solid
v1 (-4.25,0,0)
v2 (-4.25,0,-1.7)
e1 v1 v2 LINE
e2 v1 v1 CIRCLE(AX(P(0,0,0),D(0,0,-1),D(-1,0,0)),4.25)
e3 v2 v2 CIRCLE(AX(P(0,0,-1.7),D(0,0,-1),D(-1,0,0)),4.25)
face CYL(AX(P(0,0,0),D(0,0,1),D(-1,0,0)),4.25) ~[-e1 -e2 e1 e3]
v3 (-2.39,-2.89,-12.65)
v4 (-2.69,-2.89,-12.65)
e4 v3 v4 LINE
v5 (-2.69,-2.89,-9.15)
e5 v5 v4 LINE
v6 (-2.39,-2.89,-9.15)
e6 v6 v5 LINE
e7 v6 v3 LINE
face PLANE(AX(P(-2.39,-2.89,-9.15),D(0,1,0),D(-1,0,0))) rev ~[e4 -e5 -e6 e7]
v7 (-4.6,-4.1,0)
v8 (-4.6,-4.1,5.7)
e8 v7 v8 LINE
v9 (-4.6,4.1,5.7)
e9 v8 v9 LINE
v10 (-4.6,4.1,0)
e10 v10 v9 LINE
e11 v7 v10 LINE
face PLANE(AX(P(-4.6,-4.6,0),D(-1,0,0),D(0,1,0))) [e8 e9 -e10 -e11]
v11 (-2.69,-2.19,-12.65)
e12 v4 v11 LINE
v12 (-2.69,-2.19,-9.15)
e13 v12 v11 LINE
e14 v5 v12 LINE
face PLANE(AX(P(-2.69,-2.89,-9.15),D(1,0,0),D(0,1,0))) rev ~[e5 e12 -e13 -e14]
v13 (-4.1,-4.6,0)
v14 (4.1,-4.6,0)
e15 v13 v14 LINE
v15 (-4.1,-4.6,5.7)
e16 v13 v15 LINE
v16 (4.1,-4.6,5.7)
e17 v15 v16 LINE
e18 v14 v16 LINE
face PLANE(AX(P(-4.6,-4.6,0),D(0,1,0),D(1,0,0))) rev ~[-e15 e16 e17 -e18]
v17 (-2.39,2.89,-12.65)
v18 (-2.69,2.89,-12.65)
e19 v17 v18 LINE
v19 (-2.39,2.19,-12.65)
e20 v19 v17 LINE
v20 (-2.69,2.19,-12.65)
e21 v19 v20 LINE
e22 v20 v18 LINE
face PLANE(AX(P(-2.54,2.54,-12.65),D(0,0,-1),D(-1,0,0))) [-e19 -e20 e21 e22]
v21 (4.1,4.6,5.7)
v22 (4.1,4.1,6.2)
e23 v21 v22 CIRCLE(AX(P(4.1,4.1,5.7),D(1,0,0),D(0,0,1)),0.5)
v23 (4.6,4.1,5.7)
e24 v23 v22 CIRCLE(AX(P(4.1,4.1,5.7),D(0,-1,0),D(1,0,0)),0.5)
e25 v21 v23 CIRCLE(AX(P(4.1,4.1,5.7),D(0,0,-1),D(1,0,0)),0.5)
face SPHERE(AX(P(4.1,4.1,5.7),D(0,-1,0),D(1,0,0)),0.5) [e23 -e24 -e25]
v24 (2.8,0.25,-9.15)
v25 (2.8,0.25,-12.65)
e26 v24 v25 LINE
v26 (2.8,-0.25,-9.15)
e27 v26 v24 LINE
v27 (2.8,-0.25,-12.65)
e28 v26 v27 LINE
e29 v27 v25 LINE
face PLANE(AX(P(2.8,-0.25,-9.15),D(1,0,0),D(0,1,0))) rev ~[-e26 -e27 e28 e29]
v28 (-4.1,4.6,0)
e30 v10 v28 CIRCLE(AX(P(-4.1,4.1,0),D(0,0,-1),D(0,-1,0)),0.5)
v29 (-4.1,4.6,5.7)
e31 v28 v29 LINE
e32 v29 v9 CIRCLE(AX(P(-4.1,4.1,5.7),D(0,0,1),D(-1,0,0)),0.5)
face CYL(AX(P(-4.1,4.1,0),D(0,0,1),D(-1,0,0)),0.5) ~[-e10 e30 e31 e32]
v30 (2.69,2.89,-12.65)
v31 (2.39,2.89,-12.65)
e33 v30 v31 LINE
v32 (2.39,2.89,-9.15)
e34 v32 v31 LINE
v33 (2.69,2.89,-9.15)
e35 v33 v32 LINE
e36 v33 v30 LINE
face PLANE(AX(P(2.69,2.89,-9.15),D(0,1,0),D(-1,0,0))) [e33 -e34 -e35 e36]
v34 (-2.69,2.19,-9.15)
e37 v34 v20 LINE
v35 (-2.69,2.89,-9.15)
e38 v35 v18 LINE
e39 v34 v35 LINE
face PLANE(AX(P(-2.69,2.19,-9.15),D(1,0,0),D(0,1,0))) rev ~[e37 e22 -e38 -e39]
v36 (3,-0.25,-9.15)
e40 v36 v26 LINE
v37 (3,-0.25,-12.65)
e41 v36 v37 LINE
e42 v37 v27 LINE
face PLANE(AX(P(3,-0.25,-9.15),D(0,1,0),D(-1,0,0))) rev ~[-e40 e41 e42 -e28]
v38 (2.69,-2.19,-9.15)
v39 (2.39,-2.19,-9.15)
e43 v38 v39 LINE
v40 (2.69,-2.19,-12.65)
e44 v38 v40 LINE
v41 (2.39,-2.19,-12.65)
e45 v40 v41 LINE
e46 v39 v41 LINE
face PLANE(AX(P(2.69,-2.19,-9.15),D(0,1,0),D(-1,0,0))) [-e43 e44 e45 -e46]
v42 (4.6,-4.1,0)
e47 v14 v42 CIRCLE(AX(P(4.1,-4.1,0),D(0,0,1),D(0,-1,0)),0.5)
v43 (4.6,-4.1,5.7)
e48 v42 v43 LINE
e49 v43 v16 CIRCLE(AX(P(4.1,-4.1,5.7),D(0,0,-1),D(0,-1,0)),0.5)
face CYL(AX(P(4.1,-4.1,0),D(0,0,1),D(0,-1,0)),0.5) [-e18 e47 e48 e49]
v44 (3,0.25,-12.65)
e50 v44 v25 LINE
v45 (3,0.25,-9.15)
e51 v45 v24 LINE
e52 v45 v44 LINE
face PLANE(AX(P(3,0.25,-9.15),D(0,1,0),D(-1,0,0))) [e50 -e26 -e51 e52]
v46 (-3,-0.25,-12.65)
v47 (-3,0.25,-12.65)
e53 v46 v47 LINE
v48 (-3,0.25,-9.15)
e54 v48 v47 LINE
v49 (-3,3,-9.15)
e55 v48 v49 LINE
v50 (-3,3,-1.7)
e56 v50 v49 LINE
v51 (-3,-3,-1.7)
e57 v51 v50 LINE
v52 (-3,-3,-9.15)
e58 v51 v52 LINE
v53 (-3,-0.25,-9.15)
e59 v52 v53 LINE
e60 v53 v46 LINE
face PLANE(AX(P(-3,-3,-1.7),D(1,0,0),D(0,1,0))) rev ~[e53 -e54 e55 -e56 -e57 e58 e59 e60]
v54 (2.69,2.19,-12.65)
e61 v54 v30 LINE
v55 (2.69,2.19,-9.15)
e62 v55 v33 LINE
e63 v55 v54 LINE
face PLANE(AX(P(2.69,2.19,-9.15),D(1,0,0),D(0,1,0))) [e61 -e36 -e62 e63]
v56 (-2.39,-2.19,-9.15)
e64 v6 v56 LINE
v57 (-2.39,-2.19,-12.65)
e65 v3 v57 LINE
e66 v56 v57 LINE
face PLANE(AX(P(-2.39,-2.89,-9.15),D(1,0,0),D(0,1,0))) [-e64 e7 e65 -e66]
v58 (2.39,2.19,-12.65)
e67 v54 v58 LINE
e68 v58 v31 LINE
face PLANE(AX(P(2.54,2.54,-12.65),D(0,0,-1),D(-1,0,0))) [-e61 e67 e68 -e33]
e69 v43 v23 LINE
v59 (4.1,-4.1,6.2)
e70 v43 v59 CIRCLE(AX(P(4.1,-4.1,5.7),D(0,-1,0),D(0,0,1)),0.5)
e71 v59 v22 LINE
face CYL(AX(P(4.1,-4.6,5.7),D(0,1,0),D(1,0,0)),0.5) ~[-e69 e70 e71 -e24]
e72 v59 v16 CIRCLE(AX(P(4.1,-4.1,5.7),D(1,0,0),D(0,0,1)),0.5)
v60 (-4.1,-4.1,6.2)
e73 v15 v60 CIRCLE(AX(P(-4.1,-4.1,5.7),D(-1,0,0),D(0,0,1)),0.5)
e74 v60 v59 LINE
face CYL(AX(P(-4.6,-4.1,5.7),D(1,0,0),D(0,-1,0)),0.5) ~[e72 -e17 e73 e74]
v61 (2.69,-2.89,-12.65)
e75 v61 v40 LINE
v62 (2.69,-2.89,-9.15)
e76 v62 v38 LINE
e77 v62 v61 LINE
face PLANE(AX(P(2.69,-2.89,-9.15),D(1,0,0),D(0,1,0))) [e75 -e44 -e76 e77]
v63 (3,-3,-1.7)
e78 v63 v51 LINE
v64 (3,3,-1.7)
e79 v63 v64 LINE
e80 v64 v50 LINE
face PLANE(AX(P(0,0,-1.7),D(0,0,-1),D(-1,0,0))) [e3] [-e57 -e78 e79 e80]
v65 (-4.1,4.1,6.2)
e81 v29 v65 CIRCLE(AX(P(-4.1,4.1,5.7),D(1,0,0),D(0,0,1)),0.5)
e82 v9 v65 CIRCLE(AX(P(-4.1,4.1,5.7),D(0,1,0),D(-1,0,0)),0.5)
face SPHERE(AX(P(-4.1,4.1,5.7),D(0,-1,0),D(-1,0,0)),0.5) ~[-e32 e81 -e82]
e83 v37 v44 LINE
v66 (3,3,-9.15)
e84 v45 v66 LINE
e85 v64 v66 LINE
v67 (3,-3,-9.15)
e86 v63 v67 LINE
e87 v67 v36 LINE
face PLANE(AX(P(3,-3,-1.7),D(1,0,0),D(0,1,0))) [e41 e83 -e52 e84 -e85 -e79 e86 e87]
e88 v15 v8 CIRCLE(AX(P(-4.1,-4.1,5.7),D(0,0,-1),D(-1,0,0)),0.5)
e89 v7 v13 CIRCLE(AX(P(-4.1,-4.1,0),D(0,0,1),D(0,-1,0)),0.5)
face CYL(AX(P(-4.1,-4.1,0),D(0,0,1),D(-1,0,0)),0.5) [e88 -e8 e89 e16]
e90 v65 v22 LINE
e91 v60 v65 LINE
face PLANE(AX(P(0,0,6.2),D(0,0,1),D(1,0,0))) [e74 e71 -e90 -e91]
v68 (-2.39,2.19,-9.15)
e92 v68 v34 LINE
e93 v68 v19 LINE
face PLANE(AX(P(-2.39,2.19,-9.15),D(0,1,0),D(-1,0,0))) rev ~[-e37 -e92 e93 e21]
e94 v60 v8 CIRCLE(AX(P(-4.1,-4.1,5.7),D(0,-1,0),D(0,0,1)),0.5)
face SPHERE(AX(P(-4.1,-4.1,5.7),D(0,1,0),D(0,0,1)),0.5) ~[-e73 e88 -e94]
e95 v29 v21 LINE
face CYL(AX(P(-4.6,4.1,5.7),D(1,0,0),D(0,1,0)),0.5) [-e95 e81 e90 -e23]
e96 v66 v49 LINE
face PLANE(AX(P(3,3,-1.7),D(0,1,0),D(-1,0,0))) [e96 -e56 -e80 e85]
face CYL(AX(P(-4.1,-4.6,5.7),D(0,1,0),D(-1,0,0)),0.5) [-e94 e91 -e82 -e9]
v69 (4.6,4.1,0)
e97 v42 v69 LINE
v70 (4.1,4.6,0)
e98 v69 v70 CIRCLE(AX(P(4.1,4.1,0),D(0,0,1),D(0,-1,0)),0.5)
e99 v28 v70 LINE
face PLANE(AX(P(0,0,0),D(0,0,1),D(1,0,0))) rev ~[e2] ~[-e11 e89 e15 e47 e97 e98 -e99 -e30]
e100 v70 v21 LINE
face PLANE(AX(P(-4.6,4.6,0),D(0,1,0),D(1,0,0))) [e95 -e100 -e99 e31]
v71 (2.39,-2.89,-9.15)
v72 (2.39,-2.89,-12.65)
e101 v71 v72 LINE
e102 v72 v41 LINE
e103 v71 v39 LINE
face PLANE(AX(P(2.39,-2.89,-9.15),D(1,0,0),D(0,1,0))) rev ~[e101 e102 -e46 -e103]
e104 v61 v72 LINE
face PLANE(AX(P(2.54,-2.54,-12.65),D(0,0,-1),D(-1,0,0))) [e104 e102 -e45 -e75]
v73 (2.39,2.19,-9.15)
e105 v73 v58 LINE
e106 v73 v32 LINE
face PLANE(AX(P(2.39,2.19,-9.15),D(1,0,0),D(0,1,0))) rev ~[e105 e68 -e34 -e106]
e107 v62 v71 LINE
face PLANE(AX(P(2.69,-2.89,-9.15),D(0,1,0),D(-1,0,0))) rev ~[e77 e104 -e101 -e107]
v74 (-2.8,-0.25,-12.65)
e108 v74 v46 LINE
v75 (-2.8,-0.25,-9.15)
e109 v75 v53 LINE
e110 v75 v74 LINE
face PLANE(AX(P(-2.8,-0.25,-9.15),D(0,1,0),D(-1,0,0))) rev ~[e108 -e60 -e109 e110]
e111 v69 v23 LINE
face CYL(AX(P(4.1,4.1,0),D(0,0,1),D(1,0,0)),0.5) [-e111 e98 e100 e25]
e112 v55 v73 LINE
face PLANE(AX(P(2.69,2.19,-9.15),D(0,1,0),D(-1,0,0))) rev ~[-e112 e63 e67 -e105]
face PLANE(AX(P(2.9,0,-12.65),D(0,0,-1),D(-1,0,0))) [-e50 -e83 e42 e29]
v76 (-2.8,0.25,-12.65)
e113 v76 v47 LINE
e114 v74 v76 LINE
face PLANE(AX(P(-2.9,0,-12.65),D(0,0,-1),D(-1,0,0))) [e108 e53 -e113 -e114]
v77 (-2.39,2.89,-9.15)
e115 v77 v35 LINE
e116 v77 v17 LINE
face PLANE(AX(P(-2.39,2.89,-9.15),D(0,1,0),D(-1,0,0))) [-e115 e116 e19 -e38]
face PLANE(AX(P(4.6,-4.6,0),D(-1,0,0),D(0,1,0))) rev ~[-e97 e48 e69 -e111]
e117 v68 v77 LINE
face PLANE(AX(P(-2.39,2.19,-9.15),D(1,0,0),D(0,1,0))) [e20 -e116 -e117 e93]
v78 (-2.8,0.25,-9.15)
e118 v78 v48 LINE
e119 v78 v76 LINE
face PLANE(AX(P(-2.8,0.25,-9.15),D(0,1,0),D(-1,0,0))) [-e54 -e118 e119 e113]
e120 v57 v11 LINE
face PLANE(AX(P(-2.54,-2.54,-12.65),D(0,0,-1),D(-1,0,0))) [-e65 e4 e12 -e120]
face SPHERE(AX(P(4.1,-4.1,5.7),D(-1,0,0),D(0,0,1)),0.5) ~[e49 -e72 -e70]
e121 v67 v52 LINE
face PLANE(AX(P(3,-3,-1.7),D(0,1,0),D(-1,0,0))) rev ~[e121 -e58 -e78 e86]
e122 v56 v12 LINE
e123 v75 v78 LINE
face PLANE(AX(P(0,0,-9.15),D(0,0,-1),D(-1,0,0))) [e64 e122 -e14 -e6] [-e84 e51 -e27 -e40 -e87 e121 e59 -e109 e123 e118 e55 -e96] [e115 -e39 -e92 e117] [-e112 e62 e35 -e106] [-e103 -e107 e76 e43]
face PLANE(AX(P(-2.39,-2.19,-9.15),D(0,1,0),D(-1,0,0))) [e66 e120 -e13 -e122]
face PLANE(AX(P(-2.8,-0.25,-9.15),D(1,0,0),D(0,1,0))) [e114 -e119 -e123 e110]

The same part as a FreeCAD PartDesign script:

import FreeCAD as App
import Part
import Sketcher
Q = App.Units.Quantity


def edges_at(feature, points):
    """Names of the edges that pass closest to the given points."""
    edges = feature.Shape.Edges
    near = lambda p: min(range(len(edges)), key=lambda i: edges[i].distToShape(Part.Vertex(*p))[0])
    return sorted({f"Edge{near(p) + 1}" for p in points})

doc = App.newDocument("Part")
body = doc.addObject("PartDesign::Body", "Body")

# Sketch on XY plane
sketch1 = doc.addObject("Sketcher::SketchObject", "Sketch")
body.addObject(sketch1)
sketch1.AttachmentSupport = (doc.XY_Plane, [""])
sketch1.MapMode = "FlatFace"
sketch1.addGeometry([
    Part.LineSegment(App.Vector(-4.6, 4.6, 0), App.Vector(-4.6, -4.6, 0)),
    Part.LineSegment(App.Vector(-4.6, -4.6, 0), App.Vector(4.6, -4.6, 0)),
    Part.LineSegment(App.Vector(4.6, -4.6, 0), App.Vector(4.6, 4.6, 0)),
    Part.LineSegment(App.Vector(4.6, 4.6, 0), App.Vector(-4.6, 4.6, 0)),
], False)
sketch1.addConstraint([
    Sketcher.Constraint("Coincident", 0, 2, 1, 1),
    Sketcher.Constraint("Coincident", 1, 2, 2, 1),
    Sketcher.Constraint("Coincident", 2, 2, 3, 1),
    Sketcher.Constraint("Coincident", 3, 2, 0, 1),
    Sketcher.Constraint("Vertical", 0),
    Sketcher.Constraint("Horizontal", 1),
    Sketcher.Constraint("Vertical", 2),
    Sketcher.Constraint("Horizontal", 3),
    Sketcher.Constraint("Symmetric", 0, 2, 2, 2, -1, 1),
    Sketcher.Constraint("Equal", 3, 0),
    Sketcher.Constraint("DistanceX", 1, 1, 1, 2, Q("9.2 mm")),
])
pad1 = doc.addObject("PartDesign::Pad", "Pad")
body.addObject(pad1)
pad1.Profile = sketch1
pad1.Length = 6.2
doc.recompute()

fillet = doc.addObject("PartDesign::Fillet", "Fillet")
body.addObject(fillet)
fillet.Base = (pad1, edges_at(pad1, [
    (-4.6, 0, 6.2),
    (0, -4.6, 6.2),
    (4.6, 0, 6.2),
    (4.6, -4.6, 3.1),
    (-4.6, -4.6, 3.1),
    (-4.6, 4.6, 3.1),
    (4.6, 4.6, 3.1),
    (0, 4.6, 6.2),
]))
fillet.Radius = 0.5

# Sketch on XY plane
sketch2 = doc.addObject("Sketcher::SketchObject", "Sketch001")
body.addObject(sketch2)
sketch2.AttachmentSupport = (doc.XY_Plane, [""])
sketch2.MapMode = "FlatFace"
sketch2.addGeometry(Part.Circle(App.Vector(0, 0, 0), App.Vector(0, 0, 1), 4.25), False)
sketch2.addConstraint([
    Sketcher.Constraint("Coincident", 0, 3, -1, 1),
    Sketcher.Constraint("Diameter", 0, Q("8.5 mm")),
])
pad2 = doc.addObject("PartDesign::Pad", "Pad001")
body.addObject(pad2)
pad2.Profile = sketch2
pad2.Length = 1.7
pad2.Reversed = True

# Sketch on XY plane
sketch3 = doc.addObject("Sketcher::SketchObject", "Sketch002")
body.addObject(sketch3)
sketch3.AttachmentSupport = (doc.XY_Plane, [""])
sketch3.MapMode = "FlatFace"
sketch3.AttachmentOffset = App.Placement(App.Vector(0, 0, -1.7), App.Rotation())
sketch3.addGeometry([
    Part.LineSegment(App.Vector(3, 3, 0), App.Vector(3, -3, 0)),
    Part.LineSegment(App.Vector(3, -3, 0), App.Vector(-3, -3, 0)),
    Part.LineSegment(App.Vector(-3, -3, 0), App.Vector(-3, 3, 0)),
    Part.LineSegment(App.Vector(-3, 3, 0), App.Vector(3, 3, 0)),
], False)
sketch3.addConstraint([
    Sketcher.Constraint("Coincident", 0, 2, 1, 1),
    Sketcher.Constraint("Coincident", 1, 2, 2, 1),
    Sketcher.Constraint("Coincident", 2, 2, 3, 1),
    Sketcher.Constraint("Coincident", 3, 2, 0, 1),
    Sketcher.Constraint("Vertical", 0),
    Sketcher.Constraint("Horizontal", 1),
    Sketcher.Constraint("Vertical", 2),
    Sketcher.Constraint("Horizontal", 3),
    Sketcher.Constraint("Symmetric", 0, 2, 2, 2, -1, 1),
    Sketcher.Constraint("Equal", 3, 0),
    Sketcher.Constraint("DistanceX", 1, 2, 1, 1, Q("6 mm")),
])
pad3 = doc.addObject("PartDesign::Pad", "Pad002")
body.addObject(pad3)
pad3.Profile = sketch3
pad3.Length = 7.45
pad3.Reversed = True

# Sketch on XY plane
sketch4 = doc.addObject("Sketcher::SketchObject", "Sketch003")
body.addObject(sketch4)
sketch4.AttachmentSupport = (doc.XY_Plane, [""])
sketch4.MapMode = "FlatFace"
sketch4.AttachmentOffset = App.Placement(App.Vector(0, 0, -9.15), App.Rotation())
sketch4.addGeometry([
    Part.LineSegment(App.Vector(2.69, 2.89, 0), App.Vector(2.69, 2.19, 0)),  # 0
    Part.LineSegment(App.Vector(2.69, 2.19, 0), App.Vector(2.39, 2.19, 0)),  # 1
    Part.LineSegment(App.Vector(2.39, 2.19, 0), App.Vector(2.39, 2.89, 0)),  # 2
    Part.LineSegment(App.Vector(2.39, 2.89, 0), App.Vector(2.69, 2.89, 0)),  # 3
    Part.LineSegment(App.Vector(-2.39, 2.89, 0), App.Vector(-2.39, 2.19, 0)),  # 4
    Part.LineSegment(App.Vector(-2.39, 2.19, 0), App.Vector(-2.69, 2.19, 0)),  # 5
    Part.LineSegment(App.Vector(-2.69, 2.19, 0), App.Vector(-2.69, 2.89, 0)),  # 6
    Part.LineSegment(App.Vector(-2.69, 2.89, 0), App.Vector(-2.39, 2.89, 0)),  # 7
    Part.LineSegment(App.Vector(-2.39, -2.19, 0), App.Vector(-2.39, -2.89, 0)),  # 8
    Part.LineSegment(App.Vector(-2.39, -2.89, 0), App.Vector(-2.69, -2.89, 0)),  # 9
    Part.LineSegment(App.Vector(-2.69, -2.89, 0), App.Vector(-2.69, -2.19, 0)),  # 10
    Part.LineSegment(App.Vector(-2.69, -2.19, 0), App.Vector(-2.39, -2.19, 0)),  # 11
    Part.LineSegment(App.Vector(2.69, -2.19, 0), App.Vector(2.69, -2.89, 0)),  # 12
    Part.LineSegment(App.Vector(2.69, -2.89, 0), App.Vector(2.39, -2.89, 0)),  # 13
    Part.LineSegment(App.Vector(2.39, -2.89, 0), App.Vector(2.39, -2.19, 0)),  # 14
    Part.LineSegment(App.Vector(2.39, -2.19, 0), App.Vector(2.69, -2.19, 0)),  # 15
    Part.LineSegment(App.Vector(-2.8, 0.25, 0), App.Vector(-2.8, -0.25, 0)),  # 16
    Part.LineSegment(App.Vector(-2.8, -0.25, 0), App.Vector(-3, -0.25, 0)),  # 17
    Part.LineSegment(App.Vector(-3, -0.25, 0), App.Vector(-3, 0.25, 0)),  # 18
    Part.LineSegment(App.Vector(-3, 0.25, 0), App.Vector(-2.8, 0.25, 0)),  # 19
    Part.LineSegment(App.Vector(3, 0.25, 0), App.Vector(3, -0.25, 0)),  # 20
    Part.LineSegment(App.Vector(3, -0.25, 0), App.Vector(2.8, -0.25, 0)),  # 21
    Part.LineSegment(App.Vector(2.8, -0.25, 0), App.Vector(2.8, 0.25, 0)),  # 22
    Part.LineSegment(App.Vector(2.8, 0.25, 0), App.Vector(3, 0.25, 0)),  # 23
], False)
sketch4.addConstraint([
    Sketcher.Constraint("Coincident", 0, 2, 1, 1),
    Sketcher.Constraint("Coincident", 1, 2, 2, 1),
    Sketcher.Constraint("Coincident", 2, 2, 3, 1),
    Sketcher.Constraint("Coincident", 3, 2, 0, 1),
    Sketcher.Constraint("Coincident", 4, 2, 5, 1),
    Sketcher.Constraint("Coincident", 5, 2, 6, 1),
    Sketcher.Constraint("Coincident", 6, 2, 7, 1),
    Sketcher.Constraint("Coincident", 7, 2, 4, 1),
    Sketcher.Constraint("Coincident", 8, 2, 9, 1),
    Sketcher.Constraint("Coincident", 9, 2, 10, 1),
    Sketcher.Constraint("Coincident", 10, 2, 11, 1),
    Sketcher.Constraint("Coincident", 11, 2, 8, 1),
    Sketcher.Constraint("Coincident", 12, 2, 13, 1),
    Sketcher.Constraint("Coincident", 13, 2, 14, 1),
    Sketcher.Constraint("Coincident", 14, 2, 15, 1),
    Sketcher.Constraint("Coincident", 15, 2, 12, 1),
    Sketcher.Constraint("Coincident", 16, 2, 17, 1),
    Sketcher.Constraint("Coincident", 17, 2, 18, 1),
    Sketcher.Constraint("Coincident", 18, 2, 19, 1),
    Sketcher.Constraint("Coincident", 19, 2, 16, 1),
    Sketcher.Constraint("Coincident", 20, 2, 21, 1),
    Sketcher.Constraint("Coincident", 21, 2, 22, 1),
    Sketcher.Constraint("Coincident", 22, 2, 23, 1),
    Sketcher.Constraint("Coincident", 23, 2, 20, 1),
    Sketcher.Constraint("Vertical", 0),
    Sketcher.Constraint("Horizontal", 1),
    Sketcher.Constraint("Vertical", 2),
    Sketcher.Constraint("Horizontal", 3),
    Sketcher.Constraint("Vertical", 4),
    Sketcher.Constraint("Horizontal", 5),
    Sketcher.Constraint("Vertical", 6),
    Sketcher.Constraint("Horizontal", 7),
    Sketcher.Constraint("Vertical", 8),
    Sketcher.Constraint("Horizontal", 9),
    Sketcher.Constraint("Vertical", 10),
    Sketcher.Constraint("Horizontal", 11),
    Sketcher.Constraint("Vertical", 12),
    Sketcher.Constraint("Horizontal", 13),
    Sketcher.Constraint("Vertical", 14),
    Sketcher.Constraint("Horizontal", 15),
    Sketcher.Constraint("Vertical", 16),
    Sketcher.Constraint("Horizontal", 17),
    Sketcher.Constraint("Vertical", 18),
    Sketcher.Constraint("Horizontal", 19),
    Sketcher.Constraint("Vertical", 20),
    Sketcher.Constraint("Horizontal", 21),
    Sketcher.Constraint("Vertical", 22),
    Sketcher.Constraint("Horizontal", 23),
    Sketcher.Constraint("Symmetric", 2, 2, 8, 2, -1, 1),
    Sketcher.Constraint("Symmetric", 0, 2, 10, 2, -1, 1),
    Sketcher.Constraint("Symmetric", 6, 2, 12, 2, -1, 1),
    Sketcher.Constraint("Symmetric", 4, 2, 14, 2, -1, 1),
    Sketcher.Constraint("Symmetric", 18, 2, 20, 2, -1, 1),
    Sketcher.Constraint("Symmetric", 16, 2, 22, 2, -1, 1),
    Sketcher.Constraint("Symmetric", 1, 2, 4, 2, -2),
    Sketcher.Constraint("Symmetric", 3, 2, 6, 2, -2),
    Sketcher.Constraint("Horizontal", 17, 2, 20, 2),
    Sketcher.Constraint("DistanceX", 1, 2, 1, 1, Q("0.3 mm")),
    Sketcher.Constraint("DistanceX", 17, 2, 17, 1, Q("0.2 mm")),
    Sketcher.Constraint("DistanceY", 0, 2, 0, 1, Q("0.7 mm")),
    Sketcher.Constraint("DistanceY", 16, 2, 16, 1, Q("0.5 mm")),
    Sketcher.Constraint("DistanceX", 17, 2, -1, 1, Q("3 mm")),
    Sketcher.Constraint("DistanceX", -1, 1, 0, 2, Q("2.69 mm")),
    Sketcher.Constraint("DistanceY", -1, 1, 0, 2, Q("2.19 mm")),
])
pad4 = doc.addObject("PartDesign::Pad", "Pad003")
body.addObject(pad4)
pad4.Profile = sketch4
pad4.Length = 3.5
pad4.Reversed = True

doc.recompute()
